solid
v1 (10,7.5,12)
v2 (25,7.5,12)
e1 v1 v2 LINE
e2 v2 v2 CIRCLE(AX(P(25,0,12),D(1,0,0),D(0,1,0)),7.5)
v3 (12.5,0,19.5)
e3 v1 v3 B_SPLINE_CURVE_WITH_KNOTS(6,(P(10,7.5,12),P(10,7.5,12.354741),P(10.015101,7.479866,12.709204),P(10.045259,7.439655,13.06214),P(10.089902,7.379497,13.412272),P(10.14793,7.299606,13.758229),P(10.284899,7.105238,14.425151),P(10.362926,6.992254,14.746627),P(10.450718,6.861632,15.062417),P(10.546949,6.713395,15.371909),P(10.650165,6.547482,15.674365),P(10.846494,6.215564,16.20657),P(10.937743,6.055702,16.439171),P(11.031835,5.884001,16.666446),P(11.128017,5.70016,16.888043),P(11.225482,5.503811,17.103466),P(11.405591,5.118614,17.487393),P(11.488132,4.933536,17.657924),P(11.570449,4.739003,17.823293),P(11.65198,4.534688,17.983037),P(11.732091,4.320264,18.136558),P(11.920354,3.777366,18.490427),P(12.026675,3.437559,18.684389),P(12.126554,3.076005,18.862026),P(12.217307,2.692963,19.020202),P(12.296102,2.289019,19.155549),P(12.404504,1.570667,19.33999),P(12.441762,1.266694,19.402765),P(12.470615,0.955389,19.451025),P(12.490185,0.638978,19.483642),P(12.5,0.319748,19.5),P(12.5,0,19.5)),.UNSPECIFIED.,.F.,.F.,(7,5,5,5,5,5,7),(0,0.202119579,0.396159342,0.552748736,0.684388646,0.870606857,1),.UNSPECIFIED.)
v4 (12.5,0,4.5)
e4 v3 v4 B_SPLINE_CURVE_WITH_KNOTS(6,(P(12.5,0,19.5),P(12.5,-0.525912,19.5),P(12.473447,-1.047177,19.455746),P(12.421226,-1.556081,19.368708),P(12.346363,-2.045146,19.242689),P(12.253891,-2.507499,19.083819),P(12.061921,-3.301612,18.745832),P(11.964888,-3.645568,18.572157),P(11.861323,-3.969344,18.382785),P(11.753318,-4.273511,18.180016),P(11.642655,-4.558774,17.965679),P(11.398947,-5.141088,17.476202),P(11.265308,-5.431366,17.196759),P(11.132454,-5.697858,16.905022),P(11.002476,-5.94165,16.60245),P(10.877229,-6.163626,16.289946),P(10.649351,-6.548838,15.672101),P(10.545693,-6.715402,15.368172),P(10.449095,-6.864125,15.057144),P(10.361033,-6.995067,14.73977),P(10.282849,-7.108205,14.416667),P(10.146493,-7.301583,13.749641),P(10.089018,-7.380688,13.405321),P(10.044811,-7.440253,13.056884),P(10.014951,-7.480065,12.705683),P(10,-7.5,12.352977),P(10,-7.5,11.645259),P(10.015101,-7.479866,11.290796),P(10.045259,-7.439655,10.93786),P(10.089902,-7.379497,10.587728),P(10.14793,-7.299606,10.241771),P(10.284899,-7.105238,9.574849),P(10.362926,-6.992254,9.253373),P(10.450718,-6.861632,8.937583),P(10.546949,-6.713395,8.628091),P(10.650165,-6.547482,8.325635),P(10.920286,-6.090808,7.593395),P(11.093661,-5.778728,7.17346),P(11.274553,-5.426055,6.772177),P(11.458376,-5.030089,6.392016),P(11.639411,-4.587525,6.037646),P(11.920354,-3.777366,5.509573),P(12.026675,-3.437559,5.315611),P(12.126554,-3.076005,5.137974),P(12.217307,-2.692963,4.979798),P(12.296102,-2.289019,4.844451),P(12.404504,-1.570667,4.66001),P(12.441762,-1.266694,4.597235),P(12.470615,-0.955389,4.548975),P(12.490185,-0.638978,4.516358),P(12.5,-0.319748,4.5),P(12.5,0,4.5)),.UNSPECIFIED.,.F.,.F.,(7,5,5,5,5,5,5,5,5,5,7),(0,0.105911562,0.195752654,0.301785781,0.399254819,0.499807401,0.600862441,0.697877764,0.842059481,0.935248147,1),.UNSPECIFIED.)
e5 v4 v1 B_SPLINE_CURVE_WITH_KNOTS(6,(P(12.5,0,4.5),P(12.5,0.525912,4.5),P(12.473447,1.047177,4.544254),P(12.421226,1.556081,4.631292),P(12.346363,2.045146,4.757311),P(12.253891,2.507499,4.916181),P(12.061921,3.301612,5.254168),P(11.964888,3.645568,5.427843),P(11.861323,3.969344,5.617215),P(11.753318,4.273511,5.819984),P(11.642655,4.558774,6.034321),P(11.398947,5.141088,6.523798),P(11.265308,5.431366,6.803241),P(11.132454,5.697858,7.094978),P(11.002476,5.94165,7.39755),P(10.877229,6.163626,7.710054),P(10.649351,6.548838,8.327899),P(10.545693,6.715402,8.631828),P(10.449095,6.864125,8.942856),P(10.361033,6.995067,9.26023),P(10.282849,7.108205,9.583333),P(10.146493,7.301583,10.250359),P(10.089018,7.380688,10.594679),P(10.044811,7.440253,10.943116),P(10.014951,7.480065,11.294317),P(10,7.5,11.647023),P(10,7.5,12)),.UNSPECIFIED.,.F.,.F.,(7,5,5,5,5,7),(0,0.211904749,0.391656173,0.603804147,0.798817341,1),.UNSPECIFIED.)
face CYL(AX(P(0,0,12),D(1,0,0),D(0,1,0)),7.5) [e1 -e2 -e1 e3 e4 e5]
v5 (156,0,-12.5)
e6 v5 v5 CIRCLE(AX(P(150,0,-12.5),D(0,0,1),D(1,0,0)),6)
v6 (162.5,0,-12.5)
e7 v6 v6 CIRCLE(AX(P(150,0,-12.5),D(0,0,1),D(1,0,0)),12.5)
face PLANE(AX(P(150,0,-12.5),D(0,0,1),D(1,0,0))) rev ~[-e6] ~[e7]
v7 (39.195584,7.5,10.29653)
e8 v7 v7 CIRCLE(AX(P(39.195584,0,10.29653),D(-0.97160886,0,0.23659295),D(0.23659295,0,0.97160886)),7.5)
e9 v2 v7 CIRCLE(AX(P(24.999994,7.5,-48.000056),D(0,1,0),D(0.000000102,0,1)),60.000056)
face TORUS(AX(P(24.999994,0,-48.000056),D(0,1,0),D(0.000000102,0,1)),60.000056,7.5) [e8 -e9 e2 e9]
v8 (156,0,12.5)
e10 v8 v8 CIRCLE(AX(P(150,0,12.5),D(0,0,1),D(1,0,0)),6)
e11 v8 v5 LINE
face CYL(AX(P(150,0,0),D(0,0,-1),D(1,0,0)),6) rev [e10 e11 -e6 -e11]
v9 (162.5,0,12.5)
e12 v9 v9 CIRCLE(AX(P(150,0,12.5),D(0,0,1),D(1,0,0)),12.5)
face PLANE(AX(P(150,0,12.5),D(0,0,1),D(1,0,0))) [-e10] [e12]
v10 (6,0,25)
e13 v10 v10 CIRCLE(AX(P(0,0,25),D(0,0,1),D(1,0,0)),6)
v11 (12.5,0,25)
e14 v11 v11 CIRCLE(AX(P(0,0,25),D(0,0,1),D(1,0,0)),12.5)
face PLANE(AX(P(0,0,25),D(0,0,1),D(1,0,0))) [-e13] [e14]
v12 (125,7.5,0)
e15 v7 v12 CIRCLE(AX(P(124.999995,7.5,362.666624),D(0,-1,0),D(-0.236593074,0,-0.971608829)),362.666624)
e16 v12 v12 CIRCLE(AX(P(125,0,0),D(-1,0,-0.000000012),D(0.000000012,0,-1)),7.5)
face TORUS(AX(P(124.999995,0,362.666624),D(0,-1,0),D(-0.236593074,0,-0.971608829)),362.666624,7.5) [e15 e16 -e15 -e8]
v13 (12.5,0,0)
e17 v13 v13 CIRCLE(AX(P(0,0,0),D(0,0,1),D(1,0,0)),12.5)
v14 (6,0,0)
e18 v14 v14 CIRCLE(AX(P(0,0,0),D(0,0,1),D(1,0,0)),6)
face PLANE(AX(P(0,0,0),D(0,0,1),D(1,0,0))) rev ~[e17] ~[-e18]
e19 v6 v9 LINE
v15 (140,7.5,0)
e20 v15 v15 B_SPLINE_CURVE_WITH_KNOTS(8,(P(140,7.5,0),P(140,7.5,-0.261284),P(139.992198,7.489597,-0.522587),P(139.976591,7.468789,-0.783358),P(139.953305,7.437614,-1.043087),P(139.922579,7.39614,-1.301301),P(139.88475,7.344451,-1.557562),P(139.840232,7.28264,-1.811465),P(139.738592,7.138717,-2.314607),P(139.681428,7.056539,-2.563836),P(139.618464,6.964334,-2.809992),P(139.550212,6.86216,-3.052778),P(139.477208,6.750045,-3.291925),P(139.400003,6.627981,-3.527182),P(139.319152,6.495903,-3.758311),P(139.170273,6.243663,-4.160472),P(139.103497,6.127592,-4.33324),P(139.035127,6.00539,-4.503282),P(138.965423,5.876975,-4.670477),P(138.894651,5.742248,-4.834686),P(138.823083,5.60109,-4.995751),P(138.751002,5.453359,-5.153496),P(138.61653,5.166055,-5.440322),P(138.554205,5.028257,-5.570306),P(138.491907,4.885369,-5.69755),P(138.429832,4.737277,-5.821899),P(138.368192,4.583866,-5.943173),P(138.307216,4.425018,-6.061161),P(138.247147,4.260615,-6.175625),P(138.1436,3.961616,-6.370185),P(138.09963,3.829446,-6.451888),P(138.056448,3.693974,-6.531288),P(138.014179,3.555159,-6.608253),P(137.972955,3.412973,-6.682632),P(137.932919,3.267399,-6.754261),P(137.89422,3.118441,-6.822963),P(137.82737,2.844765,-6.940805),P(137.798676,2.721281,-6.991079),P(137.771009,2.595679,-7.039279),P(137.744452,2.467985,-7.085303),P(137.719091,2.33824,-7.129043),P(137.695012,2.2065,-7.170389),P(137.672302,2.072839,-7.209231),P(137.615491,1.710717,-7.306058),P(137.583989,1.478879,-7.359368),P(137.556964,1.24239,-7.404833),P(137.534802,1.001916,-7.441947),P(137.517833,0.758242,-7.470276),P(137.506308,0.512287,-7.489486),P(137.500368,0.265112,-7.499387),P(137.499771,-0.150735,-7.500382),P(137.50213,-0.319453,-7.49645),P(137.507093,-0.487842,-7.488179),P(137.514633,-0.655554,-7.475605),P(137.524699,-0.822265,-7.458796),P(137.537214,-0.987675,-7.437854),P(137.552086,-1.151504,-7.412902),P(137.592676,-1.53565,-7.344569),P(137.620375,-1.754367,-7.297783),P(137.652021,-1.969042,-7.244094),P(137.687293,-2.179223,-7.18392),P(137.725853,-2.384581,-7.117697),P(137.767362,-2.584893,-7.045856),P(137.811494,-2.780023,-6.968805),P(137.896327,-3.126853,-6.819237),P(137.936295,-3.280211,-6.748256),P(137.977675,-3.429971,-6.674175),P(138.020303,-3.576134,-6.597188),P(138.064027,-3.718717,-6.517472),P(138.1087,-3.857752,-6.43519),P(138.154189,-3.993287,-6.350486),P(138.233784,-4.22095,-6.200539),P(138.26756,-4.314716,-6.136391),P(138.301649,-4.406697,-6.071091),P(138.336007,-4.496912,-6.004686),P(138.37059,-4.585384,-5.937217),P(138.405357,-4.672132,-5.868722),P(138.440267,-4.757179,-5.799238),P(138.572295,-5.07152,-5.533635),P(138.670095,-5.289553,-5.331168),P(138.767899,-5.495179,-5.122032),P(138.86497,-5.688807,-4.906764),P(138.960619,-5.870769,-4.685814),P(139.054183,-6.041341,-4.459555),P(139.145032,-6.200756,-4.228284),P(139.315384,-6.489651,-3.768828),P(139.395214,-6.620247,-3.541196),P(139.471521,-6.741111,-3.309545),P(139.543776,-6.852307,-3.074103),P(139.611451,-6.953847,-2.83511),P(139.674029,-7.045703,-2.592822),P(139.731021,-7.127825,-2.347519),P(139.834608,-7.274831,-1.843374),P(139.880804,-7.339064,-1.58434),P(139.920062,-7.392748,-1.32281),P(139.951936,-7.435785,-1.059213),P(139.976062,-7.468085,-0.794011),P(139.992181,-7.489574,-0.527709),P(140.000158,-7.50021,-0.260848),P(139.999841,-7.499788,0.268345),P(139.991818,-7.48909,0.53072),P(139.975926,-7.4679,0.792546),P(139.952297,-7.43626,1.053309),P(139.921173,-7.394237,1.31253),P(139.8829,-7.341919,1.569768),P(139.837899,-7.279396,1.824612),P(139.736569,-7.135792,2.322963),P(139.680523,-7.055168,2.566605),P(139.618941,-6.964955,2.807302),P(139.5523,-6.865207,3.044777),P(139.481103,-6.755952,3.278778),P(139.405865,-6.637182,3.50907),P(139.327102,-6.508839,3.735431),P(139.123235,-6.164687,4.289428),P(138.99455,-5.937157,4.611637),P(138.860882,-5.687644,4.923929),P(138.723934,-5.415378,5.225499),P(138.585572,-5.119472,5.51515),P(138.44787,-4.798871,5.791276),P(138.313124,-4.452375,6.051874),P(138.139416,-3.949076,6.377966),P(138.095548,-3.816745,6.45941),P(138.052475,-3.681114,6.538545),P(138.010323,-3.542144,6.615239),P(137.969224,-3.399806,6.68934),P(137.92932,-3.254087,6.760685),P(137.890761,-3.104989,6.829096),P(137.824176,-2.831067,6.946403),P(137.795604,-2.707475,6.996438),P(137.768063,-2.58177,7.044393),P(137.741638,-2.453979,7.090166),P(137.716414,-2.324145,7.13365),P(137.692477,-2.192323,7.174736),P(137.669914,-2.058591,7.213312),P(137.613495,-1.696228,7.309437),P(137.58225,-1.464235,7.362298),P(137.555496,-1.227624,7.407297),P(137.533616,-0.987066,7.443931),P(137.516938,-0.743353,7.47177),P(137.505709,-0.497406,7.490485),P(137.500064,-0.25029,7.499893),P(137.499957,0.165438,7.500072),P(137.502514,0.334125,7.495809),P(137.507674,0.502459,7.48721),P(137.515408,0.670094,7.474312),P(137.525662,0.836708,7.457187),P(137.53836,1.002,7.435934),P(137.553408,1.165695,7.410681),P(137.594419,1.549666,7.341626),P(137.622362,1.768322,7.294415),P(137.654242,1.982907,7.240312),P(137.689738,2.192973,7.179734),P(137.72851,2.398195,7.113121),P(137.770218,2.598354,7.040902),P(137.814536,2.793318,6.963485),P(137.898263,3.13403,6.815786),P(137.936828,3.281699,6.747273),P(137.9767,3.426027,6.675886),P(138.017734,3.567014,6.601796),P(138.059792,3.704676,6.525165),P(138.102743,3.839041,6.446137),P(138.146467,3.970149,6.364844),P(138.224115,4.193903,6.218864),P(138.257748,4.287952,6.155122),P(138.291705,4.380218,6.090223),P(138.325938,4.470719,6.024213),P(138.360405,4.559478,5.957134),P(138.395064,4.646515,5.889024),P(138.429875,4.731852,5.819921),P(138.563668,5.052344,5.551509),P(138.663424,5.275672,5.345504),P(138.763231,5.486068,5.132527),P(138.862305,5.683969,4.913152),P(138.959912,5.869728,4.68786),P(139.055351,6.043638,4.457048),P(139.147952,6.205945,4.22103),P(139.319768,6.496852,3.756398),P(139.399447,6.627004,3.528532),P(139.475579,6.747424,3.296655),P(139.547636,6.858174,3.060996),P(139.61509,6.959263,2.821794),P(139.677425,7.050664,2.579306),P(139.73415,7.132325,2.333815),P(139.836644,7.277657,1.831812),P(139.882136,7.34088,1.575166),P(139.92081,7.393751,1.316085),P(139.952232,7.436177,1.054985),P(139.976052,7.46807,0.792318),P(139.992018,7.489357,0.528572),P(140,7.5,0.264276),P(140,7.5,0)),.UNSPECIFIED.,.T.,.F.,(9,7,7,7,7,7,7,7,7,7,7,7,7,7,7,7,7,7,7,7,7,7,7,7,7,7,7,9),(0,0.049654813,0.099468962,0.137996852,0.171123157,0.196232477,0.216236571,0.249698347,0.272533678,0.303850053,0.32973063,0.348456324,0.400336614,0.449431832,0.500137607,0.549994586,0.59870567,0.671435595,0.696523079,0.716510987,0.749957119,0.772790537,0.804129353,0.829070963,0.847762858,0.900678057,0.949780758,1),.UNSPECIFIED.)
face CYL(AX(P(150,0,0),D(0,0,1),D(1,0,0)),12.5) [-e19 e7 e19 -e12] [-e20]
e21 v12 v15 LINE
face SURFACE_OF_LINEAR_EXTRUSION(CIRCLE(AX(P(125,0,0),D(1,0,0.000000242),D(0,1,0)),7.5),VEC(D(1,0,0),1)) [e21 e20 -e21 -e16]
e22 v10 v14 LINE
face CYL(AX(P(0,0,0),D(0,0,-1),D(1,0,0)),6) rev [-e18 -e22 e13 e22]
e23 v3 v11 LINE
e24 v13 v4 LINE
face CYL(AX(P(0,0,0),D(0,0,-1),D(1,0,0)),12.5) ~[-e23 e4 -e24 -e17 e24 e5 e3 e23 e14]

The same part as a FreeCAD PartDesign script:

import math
import FreeCAD as App
import Part
import Sketcher

V = App.Vector
Q = App.Units.Quantity

doc = App.newDocument("Part")
body = doc.addObject("PartDesign::Body", "Body")

# Sketch on XY plane
sketch1 = body.newObject("Sketcher::SketchObject", "Sketch")
sketch1.AttachmentSupport = (doc.getObject("XY_Plane"), [""])
sketch1.MapMode = "FlatFace"
sketch1.addGeometry([
    Part.Circle(V(0, 0, 0), V(0, 0, 1), 12.5),
    Part.Circle(V(0, 0, 0), V(0, 0, 1), 6),
], False)
sketch1.addConstraint([
    Sketcher.Constraint("Coincident", 0, 3, -1, 1),
    Sketcher.Constraint("Coincident", 1, 3, -1, 1),
    Sketcher.Constraint("Diameter", 0, Q("25 mm")),
    Sketcher.Constraint("Diameter", 1, Q("12 mm")),
])
pad1 = body.newObject("PartDesign::Pad", "Pad")
pad1.Profile = sketch1
pad1.Length = 25

# Sketch on YZ plane
sketch2 = body.newObject("Sketcher::SketchObject", "Sketch001")
sketch2.AttachmentSupport = (doc.getObject("YZ_Plane"), [""])
sketch2.MapMode = "FlatFace"
sketch2.addGeometry(Part.Circle(V(0, 12, 0), V(0, 0, 1), 7.5), False)
sketch2.addConstraint([
    Sketcher.Constraint("PointOnObject", 0, 3, -2),
    Sketcher.Constraint("Diameter", 0, Q("15 mm")),
    Sketcher.Constraint("DistanceY", -1, 1, 0, 3, Q("12 mm")),
])

# Sketch on XZ plane
sketch3 = body.newObject("Sketcher::SketchObject", "Sketch002")
sketch3.AttachmentSupport = (doc.getObject("XZ_Plane"), [""])
sketch3.MapMode = "FlatFace"
sketch3.addGeometry([
    Part.LineSegment(V(0, 12, 0), V(25, 12, 0)),
    Part.ArcOfCircle(Part.Circle(V(24.999994, -48.000056, 0), V(0, 0, 1), 60.000056), math.radians(76.31446), math.radians(89.999994)),
    Part.ArcOfCircle(Part.Circle(V(124.999995, 362.666624, 0), V(0, 0, 1), 362.666624), math.radians(-103.685548), math.radians(-89.999999)),
    Part.LineSegment(V(125, 0, 0), V(150, 0, 0)),
], False)
sketch3.addConstraint([
    Sketcher.Constraint("Tangent", 0, 2, 1, 2),
    Sketcher.Constraint("Tangent", 1, 1, 2, 1),
    Sketcher.Constraint("Tangent", 2, 2, 3, 1),
    Sketcher.Constraint("Horizontal", 0),
    Sketcher.Constraint("Horizontal", 3),
    Sketcher.Constraint("PointOnObject", 0, 1, -2),
    Sketcher.Constraint("PointOnObject", 2, 2, -1),
    Sketcher.Constraint("Equal", 0, 3),
    Sketcher.Constraint("DistanceX", 0, 1, 0, 2, Q("25 mm")),
    Sketcher.Constraint("DistanceY", -1, 1, 0, 1, Q("12 mm")),
    Sketcher.Constraint("DistanceX", -1, 1, 3, 2, Q("150 mm")),
    Sketcher.Constraint("Radius", 1, Q("60.000056 mm")),
])
doc.recompute()

additivepipe = body.newObject("PartDesign::AdditivePipe", "AdditivePipe")
additivepipe.Profile = sketch2
additivepipe.Spine = (sketch3, ["Edge1", "Edge2", "Edge3", "Edge4"])

# Sketch on XY plane
sketch4 = body.newObject("Sketcher::SketchObject", "Sketch003")
sketch4.AttachmentSupport = (doc.getObject("XY_Plane"), [""])
sketch4.MapMode = "FlatFace"
sketch4.addGeometry([
    Part.Circle(V(150, 0, 0), V(0, 0, 1), 12.5),
    Part.Circle(V(150, 0, 0), V(0, 0, 1), 6),
], False)
sketch4.addConstraint([
    Sketcher.Constraint("Coincident", 1, 3, 0, 3),
    Sketcher.Constraint("PointOnObject", 0, 3, -1),
    Sketcher.Constraint("Diameter", 0, Q("25 mm")),
    Sketcher.Constraint("Diameter", 1, Q("12 mm")),
    Sketcher.Constraint("DistanceX", -1, 1, 0, 3, Q("150 mm")),
])
pad2 = body.newObject("PartDesign::Pad", "Pad001")
pad2.Profile = sketch4
pad2.Length = 25
pad2.Midplane = True

# Sketch on XY plane
sketch5 = body.newObject("Sketcher::SketchObject", "Sketch004")
sketch5.AttachmentSupport = (doc.getObject("XY_Plane"), [""])
sketch5.MapMode = "FlatFace"
sketch5.addGeometry(Part.Circle(V(0, 0, 0), V(0, 0, 1), 6), False)
sketch5.addConstraint([
    Sketcher.Constraint("Coincident", 0, 3, -1, 1),
    Sketcher.Constraint("Diameter", 0, Q("12 mm")),
])
pocket1 = body.newObject("PartDesign::Pocket", "Pocket")
pocket1.Profile = sketch5
pocket1.Type = "ThroughAll"
pocket1.Reversed = True

# Sketch on XY plane
sketch6 = body.newObject("Sketcher::SketchObject", "Sketch005")
sketch6.AttachmentSupport = (doc.getObject("XY_Plane"), [""])
sketch6.MapMode = "FlatFace"
sketch6.addGeometry(Part.Circle(V(150, 0, 0), V(0, 0, 1), 6), False)
sketch6.addConstraint([
    Sketcher.Constraint("PointOnObject", 0, 3, -1),
    Sketcher.Constraint("Diameter", 0, Q("12 mm")),
    Sketcher.Constraint("DistanceX", -1, 1, 0, 3, Q("150 mm")),
])
pocket2 = body.newObject("PartDesign::Pocket", "Pocket001")
pocket2.Profile = sketch6
pocket2.Length = 25
pocket2.Midplane = True

doc.recompute()
